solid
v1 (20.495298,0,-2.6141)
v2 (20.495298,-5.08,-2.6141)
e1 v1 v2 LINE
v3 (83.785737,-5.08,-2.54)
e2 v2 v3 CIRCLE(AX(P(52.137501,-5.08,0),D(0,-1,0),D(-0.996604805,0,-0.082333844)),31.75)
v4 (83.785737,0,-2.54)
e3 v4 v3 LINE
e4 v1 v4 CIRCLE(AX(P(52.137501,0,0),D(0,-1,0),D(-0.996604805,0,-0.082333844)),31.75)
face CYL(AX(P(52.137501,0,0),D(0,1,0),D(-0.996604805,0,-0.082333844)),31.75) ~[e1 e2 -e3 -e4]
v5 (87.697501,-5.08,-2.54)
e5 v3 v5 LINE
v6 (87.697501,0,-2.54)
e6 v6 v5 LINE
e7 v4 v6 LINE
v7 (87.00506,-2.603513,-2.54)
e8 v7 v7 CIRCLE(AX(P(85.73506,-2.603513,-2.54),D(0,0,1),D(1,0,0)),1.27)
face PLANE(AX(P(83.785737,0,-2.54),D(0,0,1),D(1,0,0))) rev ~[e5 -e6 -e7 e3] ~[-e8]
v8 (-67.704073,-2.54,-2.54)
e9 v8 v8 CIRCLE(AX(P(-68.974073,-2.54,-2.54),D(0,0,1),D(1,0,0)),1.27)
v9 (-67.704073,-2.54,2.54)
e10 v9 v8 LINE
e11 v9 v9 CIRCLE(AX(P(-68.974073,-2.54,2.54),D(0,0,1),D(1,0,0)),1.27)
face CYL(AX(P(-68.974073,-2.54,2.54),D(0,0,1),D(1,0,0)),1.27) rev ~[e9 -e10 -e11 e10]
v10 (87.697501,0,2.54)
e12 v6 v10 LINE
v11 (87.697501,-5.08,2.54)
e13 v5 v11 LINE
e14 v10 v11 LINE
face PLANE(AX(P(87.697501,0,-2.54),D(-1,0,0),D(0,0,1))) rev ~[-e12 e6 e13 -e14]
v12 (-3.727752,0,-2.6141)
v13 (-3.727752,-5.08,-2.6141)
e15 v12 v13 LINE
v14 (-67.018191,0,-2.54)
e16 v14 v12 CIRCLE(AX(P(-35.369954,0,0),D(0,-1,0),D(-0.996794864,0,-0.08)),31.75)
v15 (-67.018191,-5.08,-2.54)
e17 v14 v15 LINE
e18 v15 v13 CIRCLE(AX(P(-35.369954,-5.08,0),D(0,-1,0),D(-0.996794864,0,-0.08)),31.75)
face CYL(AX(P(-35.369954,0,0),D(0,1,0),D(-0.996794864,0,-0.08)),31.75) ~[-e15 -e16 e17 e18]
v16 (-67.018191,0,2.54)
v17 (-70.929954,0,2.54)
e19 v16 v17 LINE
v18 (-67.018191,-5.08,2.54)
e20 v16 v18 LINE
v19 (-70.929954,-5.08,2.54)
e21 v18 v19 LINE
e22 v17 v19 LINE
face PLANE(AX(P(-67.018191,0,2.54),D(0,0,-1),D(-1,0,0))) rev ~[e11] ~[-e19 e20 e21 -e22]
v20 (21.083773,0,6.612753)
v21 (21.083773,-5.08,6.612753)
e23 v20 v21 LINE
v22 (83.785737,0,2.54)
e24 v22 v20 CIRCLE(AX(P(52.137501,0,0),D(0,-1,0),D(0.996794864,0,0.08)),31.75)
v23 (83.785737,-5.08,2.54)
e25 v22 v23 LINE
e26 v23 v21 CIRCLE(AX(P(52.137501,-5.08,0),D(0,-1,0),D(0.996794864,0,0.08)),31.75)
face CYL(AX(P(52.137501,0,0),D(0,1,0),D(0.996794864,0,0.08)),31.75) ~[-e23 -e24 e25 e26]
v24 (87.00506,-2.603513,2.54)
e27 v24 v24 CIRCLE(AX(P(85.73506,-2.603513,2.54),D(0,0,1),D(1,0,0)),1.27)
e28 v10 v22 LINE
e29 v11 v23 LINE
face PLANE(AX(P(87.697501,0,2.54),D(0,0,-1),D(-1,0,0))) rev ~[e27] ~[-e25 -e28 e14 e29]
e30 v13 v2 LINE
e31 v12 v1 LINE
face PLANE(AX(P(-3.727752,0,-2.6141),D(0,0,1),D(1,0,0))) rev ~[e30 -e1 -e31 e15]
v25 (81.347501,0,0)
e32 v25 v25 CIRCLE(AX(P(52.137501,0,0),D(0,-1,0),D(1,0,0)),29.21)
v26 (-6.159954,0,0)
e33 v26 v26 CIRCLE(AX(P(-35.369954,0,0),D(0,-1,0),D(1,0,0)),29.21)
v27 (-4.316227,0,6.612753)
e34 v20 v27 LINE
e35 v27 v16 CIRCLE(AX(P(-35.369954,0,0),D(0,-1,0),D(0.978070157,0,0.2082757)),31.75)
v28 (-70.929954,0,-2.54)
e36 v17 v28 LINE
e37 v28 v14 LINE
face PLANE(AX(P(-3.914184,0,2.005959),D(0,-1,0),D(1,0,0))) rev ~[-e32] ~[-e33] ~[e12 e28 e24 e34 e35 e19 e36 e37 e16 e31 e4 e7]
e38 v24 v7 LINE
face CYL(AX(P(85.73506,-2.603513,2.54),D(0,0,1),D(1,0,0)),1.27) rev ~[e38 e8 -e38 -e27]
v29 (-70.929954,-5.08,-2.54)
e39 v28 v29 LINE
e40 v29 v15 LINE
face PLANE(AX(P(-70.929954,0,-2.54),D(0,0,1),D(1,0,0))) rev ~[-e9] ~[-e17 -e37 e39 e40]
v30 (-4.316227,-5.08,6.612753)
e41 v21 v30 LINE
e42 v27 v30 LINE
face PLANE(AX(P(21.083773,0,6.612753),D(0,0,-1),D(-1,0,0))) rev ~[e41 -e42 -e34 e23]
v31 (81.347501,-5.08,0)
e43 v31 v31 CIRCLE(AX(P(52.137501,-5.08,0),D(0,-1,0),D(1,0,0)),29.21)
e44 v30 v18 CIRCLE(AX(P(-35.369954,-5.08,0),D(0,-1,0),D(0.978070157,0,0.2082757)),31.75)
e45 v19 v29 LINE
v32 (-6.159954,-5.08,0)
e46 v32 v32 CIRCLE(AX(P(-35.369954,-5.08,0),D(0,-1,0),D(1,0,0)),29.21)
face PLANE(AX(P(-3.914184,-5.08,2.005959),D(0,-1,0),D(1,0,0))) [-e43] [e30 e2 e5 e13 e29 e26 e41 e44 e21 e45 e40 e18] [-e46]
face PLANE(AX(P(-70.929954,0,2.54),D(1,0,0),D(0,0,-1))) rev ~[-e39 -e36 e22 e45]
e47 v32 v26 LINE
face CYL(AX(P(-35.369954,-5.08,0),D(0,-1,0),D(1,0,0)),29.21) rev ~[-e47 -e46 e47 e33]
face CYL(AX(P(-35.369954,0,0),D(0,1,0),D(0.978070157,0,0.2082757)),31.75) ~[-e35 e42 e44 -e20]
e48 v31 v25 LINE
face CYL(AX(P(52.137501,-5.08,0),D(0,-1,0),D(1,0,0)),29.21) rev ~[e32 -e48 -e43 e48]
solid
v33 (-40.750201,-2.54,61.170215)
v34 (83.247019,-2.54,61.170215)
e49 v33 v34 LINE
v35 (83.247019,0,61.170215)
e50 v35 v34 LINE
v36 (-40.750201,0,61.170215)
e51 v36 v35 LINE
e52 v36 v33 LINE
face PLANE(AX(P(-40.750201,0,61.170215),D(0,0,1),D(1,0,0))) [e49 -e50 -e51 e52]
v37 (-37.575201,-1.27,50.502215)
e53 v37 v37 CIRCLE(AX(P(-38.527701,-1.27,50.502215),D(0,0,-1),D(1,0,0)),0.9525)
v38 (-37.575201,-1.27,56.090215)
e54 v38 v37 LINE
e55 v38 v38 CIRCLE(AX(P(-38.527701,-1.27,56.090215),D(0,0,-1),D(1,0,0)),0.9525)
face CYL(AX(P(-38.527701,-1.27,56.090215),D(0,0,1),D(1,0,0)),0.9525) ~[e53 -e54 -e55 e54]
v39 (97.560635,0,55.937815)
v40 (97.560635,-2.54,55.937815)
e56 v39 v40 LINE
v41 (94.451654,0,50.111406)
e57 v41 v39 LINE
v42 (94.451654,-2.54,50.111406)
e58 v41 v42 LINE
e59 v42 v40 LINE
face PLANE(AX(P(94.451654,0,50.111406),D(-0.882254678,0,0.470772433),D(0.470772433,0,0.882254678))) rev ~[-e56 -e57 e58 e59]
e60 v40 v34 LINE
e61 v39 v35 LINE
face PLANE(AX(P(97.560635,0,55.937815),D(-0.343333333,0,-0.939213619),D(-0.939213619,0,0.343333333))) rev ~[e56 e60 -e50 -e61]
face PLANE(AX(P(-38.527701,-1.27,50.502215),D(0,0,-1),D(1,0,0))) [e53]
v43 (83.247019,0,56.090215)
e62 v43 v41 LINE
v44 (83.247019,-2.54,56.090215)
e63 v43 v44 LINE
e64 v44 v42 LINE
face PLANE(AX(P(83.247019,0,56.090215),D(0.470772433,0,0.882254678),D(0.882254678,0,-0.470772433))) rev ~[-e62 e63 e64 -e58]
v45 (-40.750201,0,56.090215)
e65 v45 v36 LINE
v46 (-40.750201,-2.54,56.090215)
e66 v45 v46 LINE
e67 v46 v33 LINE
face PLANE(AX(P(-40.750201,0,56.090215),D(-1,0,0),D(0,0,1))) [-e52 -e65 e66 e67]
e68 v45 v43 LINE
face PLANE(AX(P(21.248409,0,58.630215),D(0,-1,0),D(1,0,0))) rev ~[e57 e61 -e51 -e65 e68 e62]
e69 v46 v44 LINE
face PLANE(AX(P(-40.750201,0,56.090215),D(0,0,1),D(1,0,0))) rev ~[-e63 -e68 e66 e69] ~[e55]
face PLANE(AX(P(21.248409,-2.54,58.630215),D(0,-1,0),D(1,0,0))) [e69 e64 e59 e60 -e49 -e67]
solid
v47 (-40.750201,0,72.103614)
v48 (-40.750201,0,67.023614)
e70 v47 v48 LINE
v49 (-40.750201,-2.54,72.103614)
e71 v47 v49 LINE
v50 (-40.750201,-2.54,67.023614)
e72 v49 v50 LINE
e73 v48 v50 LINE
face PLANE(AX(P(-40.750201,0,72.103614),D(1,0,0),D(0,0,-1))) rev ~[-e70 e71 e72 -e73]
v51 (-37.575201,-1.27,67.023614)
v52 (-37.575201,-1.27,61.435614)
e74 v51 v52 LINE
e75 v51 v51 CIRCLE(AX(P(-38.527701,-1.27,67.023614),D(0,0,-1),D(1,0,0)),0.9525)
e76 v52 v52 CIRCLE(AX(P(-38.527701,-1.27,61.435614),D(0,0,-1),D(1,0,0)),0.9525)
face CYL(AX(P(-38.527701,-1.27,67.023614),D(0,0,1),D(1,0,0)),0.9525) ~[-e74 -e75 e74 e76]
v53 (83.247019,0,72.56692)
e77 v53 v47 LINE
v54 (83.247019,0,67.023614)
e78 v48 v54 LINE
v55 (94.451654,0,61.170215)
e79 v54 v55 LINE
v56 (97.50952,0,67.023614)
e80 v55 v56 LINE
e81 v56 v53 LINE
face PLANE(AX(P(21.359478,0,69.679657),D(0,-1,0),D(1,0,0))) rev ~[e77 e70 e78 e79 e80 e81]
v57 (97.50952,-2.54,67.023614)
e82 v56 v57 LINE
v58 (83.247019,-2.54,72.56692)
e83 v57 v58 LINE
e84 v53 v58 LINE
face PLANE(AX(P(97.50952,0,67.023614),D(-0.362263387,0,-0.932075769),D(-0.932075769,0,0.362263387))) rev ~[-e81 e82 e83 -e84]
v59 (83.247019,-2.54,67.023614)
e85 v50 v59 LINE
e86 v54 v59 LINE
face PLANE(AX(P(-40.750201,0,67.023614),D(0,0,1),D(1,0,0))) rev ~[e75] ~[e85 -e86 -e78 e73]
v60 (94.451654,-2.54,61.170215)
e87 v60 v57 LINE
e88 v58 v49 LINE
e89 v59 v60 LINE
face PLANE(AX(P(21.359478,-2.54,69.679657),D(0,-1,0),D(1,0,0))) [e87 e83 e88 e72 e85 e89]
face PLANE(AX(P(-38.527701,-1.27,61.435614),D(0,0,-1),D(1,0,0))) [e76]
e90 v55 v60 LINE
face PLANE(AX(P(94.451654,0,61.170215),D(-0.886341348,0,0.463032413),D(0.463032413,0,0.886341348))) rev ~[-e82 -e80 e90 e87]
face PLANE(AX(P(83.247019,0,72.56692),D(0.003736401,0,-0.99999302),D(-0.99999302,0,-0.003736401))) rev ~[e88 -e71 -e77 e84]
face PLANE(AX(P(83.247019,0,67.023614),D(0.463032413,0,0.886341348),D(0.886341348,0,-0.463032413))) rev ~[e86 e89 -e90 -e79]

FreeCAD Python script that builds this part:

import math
import FreeCAD as App
import Part
import Sketcher
Q = App.Units.Quantity


def add_polygon(sketch, points):
    """Adds a closed chain of lines whose ends are joined by coincident constraints."""
    first, n = sketch.GeometryCount, len(points)
    for a, b in zip(points, points[1:] + points[:1]):
        sketch.addGeometry(Part.LineSegment(App.Vector(*a, 0), App.Vector(*b, 0)), False)
    for i in range(n):
        sketch.addConstraint(Sketcher.Constraint("Coincident", first + i, 2, first + (i + 1) % n, 1))

doc = App.newDocument("Part")
body = doc.addObject("PartDesign::Body", "Body")

sketch1 = doc.addObject("Sketcher::SketchObject", "Sketch")
body.addObject(sketch1)
sketch1.AttachmentSupport = (doc.XZ_Plane, [""])
sketch1.MapMode = "FlatFace"
sketch1.addGeometry([
    Part.LineSegment(App.Vector(-3.727752, -2.6141, 0), App.Vector(20.495298, -2.6141, 0)),
    Part.ArcOfCircle(Part.Circle(App.Vector(52.137501, 0, 0), App.Vector(0, 0, 1), 31.75), math.radians(-175.277272), math.radians(-4.588566)),
    Part.LineSegment(App.Vector(83.785737, -2.54, 0), App.Vector(87.697501, -2.54, 0)),
    Part.LineSegment(App.Vector(87.697501, -2.54, 0), App.Vector(87.697501, 2.54, 0)),
    Part.LineSegment(App.Vector(87.697501, 2.54, 0), App.Vector(83.785737, 2.54, 0)),
    Part.ArcOfCircle(Part.Circle(App.Vector(52.137501, 0, 0), App.Vector(0, 0, 1), 31.75), math.radians(4.588566), math.radians(167.978677)),
    Part.LineSegment(App.Vector(21.083773, 6.612753, 0), App.Vector(-4.316227, 6.612753, 0)),
    Part.ArcOfCircle(Part.Circle(App.Vector(-35.369954, 0, 0), App.Vector(0, 0, 1), 31.75), math.radians(12.021323), math.radians(175.411434)),
    Part.LineSegment(App.Vector(-67.018191, 2.54, 0), App.Vector(-70.929954, 2.54, 0)),
    Part.LineSegment(App.Vector(-70.929954, 2.54, 0), App.Vector(-70.929954, -2.54, 0)),
    Part.LineSegment(App.Vector(-70.929954, -2.54, 0), App.Vector(-67.018191, -2.54, 0)),
    Part.ArcOfCircle(Part.Circle(App.Vector(-35.369954, 0, 0), App.Vector(0, 0, 1), 31.75), math.radians(-175.411434), math.radians(-4.722728)),
], False)
sketch1.addConstraint([
    Sketcher.Constraint("Coincident", 0, 2, 1, 1),
    Sketcher.Constraint("Coincident", 1, 2, 2, 1),
    Sketcher.Constraint("Coincident", 2, 2, 3, 1),
    Sketcher.Constraint("Coincident", 3, 2, 4, 1),
    Sketcher.Constraint("Coincident", 4, 2, 5, 1),
    Sketcher.Constraint("Coincident", 5, 2, 6, 1),
    Sketcher.Constraint("Coincident", 6, 2, 7, 1),
    Sketcher.Constraint("Coincident", 7, 2, 8, 1),
    Sketcher.Constraint("Coincident", 8, 2, 9, 1),
    Sketcher.Constraint("Coincident", 9, 2, 10, 1),
    Sketcher.Constraint("Coincident", 10, 2, 11, 1),
    Sketcher.Constraint("Coincident", 11, 2, 0, 1),
    Sketcher.Constraint("Horizontal", 0),
    Sketcher.Constraint("Horizontal", 2),
    Sketcher.Constraint("Vertical", 3),
    Sketcher.Constraint("Horizontal", 4),
    Sketcher.Constraint("Horizontal", 6),
    Sketcher.Constraint("Horizontal", 8),
    Sketcher.Constraint("Vertical", 9),
    Sketcher.Constraint("Horizontal", 10),
    Sketcher.Constraint("Coincident", 5, 3, 1, 3),
    Sketcher.Constraint("Coincident", 11, 3, 7, 3),
    Sketcher.Constraint("Equal", 1, 5),
    Sketcher.Constraint("Equal", 5, 7),
    Sketcher.Constraint("Equal", 7, 11),
    Sketcher.Constraint("Symmetric", 1, 2, 4, 2, -1),
    Sketcher.Constraint("Symmetric", 7, 2, 10, 2, -1),
    Sketcher.Constraint("Horizontal", 4, 2, 7, 2),
    Sketcher.Constraint("Equal", 4, 8),
    Sketcher.Constraint("DistanceX", 6, 2, 6, 1, Q("1 in")),
    Sketcher.Constraint("Radius", 1, Q("1.25 in")),
    Sketcher.Constraint("DistanceY", 3, 1, 3, 2, Q("0.2 in")),
    Sketcher.Constraint("DistanceX", 1, 3, 2, 2, Q("1.4 in")),
    Sketcher.Constraint("DistanceX", 0, 1, 0, 2, Q("24.22305 mm")),
    Sketcher.Constraint("DistanceX", -1, 1, 1, 3, Q("52.137501 mm")),
    Sketcher.Constraint("DistanceY", 0, 2, -1, 1, Q("2.6141 mm")),
])
pad1 = doc.addObject("PartDesign::Pad", "Pad")
body.addObject(pad1)
pad1.Profile = sketch1
pad1.Length = Q("0.2 in")

sketch2 = doc.addObject("Sketcher::SketchObject", "Sketch001")
body.addObject(sketch2)
sketch2.AttachmentSupport = (doc.XZ_Plane, [""])
sketch2.MapMode = "FlatFace"
sketch2.AttachmentOffset = App.Placement(App.Vector(0, 0, 0.2 * 25.4), App.Rotation())
sketch2.addGeometry([
    Part.Circle(App.Vector(-35.369954, 0, 0), App.Vector(0, 0, 1), 29.21),
    Part.Circle(App.Vector(52.137501, 0, 0), App.Vector(0, 0, 1), 29.21),
], False)
sketch2.addConstraint([
    Sketcher.Constraint("Equal", 0, 1),
    Sketcher.Constraint("PointOnObject", 0, 3, -1),
    Sketcher.Constraint("PointOnObject", 1, 3, -1),
    Sketcher.Constraint("Diameter", 0, Q("2.3 in")),
    Sketcher.Constraint("DistanceX", -1, 1, 1, 3, Q("52.137501 mm")),
    Sketcher.Constraint("DistanceX", 0, 3, -1, 1, Q("35.369954 mm")),
])
pocket1 = doc.addObject("PartDesign::Pocket", "Pocket")
body.addObject(pocket1)
pocket1.Profile = sketch2
pocket1.Length = Q("1 in")

sketch3 = doc.addObject("Sketcher::SketchObject", "Sketch002")
body.addObject(sketch3)
sketch3.AttachmentSupport = (doc.XY_Plane, [""])
sketch3.MapMode = "FlatFace"
sketch3.AttachmentOffset = App.Placement(App.Vector(0, 0, 0.1 * 25.4), App.Rotation())
sketch3.addGeometry([
    Part.Circle(App.Vector(-68.974073, -2.54, 0), App.Vector(0, 0, 1), 1.27),
    Part.Circle(App.Vector(85.73506, -2.603513, 0), App.Vector(0, 0, 1), 1.27),
], False)
sketch3.addConstraint([
    Sketcher.Constraint("Equal", 0, 1),
    Sketcher.Constraint("Diameter", 0, Q("0.1 in")),
    Sketcher.Constraint("DistanceY", 0, 3, -1, 1, Q("0.1 in")),
    Sketcher.Constraint("DistanceX", -1, 1, 1, 3, Q("85.73506 mm")),
    Sketcher.Constraint("DistanceX", 0, 3, -1, 1, Q("68.974073 mm")),
    Sketcher.Constraint("DistanceY", 1, 3, -1, 1, Q("2.603513 mm")),
])
pocket2 = doc.addObject("PartDesign::Pocket", "Pocket001")
body.addObject(pocket2)
pocket2.Profile = sketch3
pocket2.Length = Q("1 in")
body2 = doc.addObject("PartDesign::Body", "Body001")

sketch4 = doc.addObject("Sketcher::SketchObject", "Sketch003")
body2.addObject(sketch4)
sketch4.AttachmentSupport = (doc.getObject("XZ_Plane001"), [""])
sketch4.MapMode = "FlatFace"
add_polygon(sketch4, [(83.247019, 72.56692), (-40.750201, 72.103614), (-40.750201, 67.023614), (83.247019, 67.023614), (94.451654, 61.170215), (97.50952, 67.023614)])
sketch4.addConstraint([
    Sketcher.Constraint("Vertical", 1),
    Sketcher.Constraint("Horizontal", 2),
    Sketcher.Constraint("Perpendicular", 3, 4),
    Sketcher.Constraint("Horizontal", 2, 2, 4, 2),
    Sketcher.Constraint("Vertical", 2, 2, 5, 2),
    Sketcher.Constraint("DistanceY", 1, 2, 1, 1, Q("0.2 in")),
    Sketcher.Constraint("Distance", 4, Q("0.26 in")),
    Sketcher.Constraint("DistanceX", 2, 1, 2, 2, Q("123.99722 mm")),
    Sketcher.Constraint("DistanceX", 0, 2, -1, 1, Q("40.750201 mm")),
    Sketcher.Constraint("DistanceY", 3, 2, 2, 2, Q("5.853398 mm")),
    Sketcher.Constraint("Distance", 5, Q("15.301868 mm")),
    Sketcher.Constraint("DistanceY", -1, 1, 5, 2, Q("72.56692 mm")),
])
pad2 = doc.addObject("PartDesign::Pad", "Pad001")
body2.addObject(pad2)
pad2.Profile = sketch4
pad2.Length = Q("0.1 in")

sketch5 = doc.addObject("Sketcher::SketchObject", "Sketch004")
body2.addObject(sketch5)
sketch5.AttachmentSupport = (doc.getObject("XY_Plane001"), [""])
sketch5.MapMode = "FlatFace"
sketch5.AttachmentOffset = App.Placement(App.Vector(0, 0, 67.023614), App.Rotation())
sketch5.addGeometry(Part.Circle(App.Vector(-38.527701, -1.27, 0), App.Vector(0, 0, 1), 0.9525), False)
sketch5.addConstraint([
    Sketcher.Constraint("Diameter", 0, Q("0.075 in")),
    Sketcher.Constraint("DistanceY", 0, 3, -1, 1, Q("0.05 in")),
    Sketcher.Constraint("DistanceX", 0, 3, -1, 1, Q("38.527701 mm")),
])
pad3 = doc.addObject("PartDesign::Pad", "Pad002")
body2.addObject(pad3)
pad3.Profile = sketch5
pad3.Length = Q("0.22 in")
pad3.Reversed = True
body3 = doc.addObject("PartDesign::Body", "Body002")

sketch6 = doc.addObject("Sketcher::SketchObject", "Sketch005")
body3.addObject(sketch6)
sketch6.AttachmentSupport = (doc.getObject("XZ_Plane002"), [""])
sketch6.MapMode = "FlatFace"
add_polygon(sketch6, [(-40.750201, 61.170215), (-40.750201, 56.090215), (83.247019, 56.090215), (94.451654, 50.111406), (97.560635, 55.937815), (83.247019, 61.170215)])
sketch6.addConstraint([
    Sketcher.Constraint("Vertical", 0),
    Sketcher.Constraint("Horizontal", 1),
    Sketcher.Constraint("Horizontal", 5),
    Sketcher.Constraint("Perpendicular", 2, 3),
    Sketcher.Constraint("Vertical", 1, 2, 4, 2),
    Sketcher.Constraint("DistanceY", 0, 2, 0, 1, Q("0.2 in")),
    Sketcher.Constraint("Distance", 2, Q("0.5 in")),
    Sketcher.Constraint("Distance", 4, Q("0.6 in")),
    Sketcher.Constraint("Distance", 3, Q("0.26 in")),
    Sketcher.Constraint("DistanceX", 1, 1, 1, 2, Q("123.99722 mm")),
    Sketcher.Constraint("DistanceX", 0, 2, -1, 1, Q("40.750201 mm")),
    Sketcher.Constraint("DistanceY", -1, 1, 0, 2, Q("56.090215 mm")),
])
pad4 = doc.addObject("PartDesign::Pad", "Pad003")
body3.addObject(pad4)
pad4.Profile = sketch6
pad4.Length = Q("0.1 in")

sketch7 = doc.addObject("Sketcher::SketchObject", "Sketch006")
body3.addObject(sketch7)
sketch7.AttachmentSupport = (doc.getObject("XY_Plane002"), [""])
sketch7.MapMode = "FlatFace"
sketch7.AttachmentOffset = App.Placement(App.Vector(0, 0, 56.090215), App.Rotation())
sketch7.addGeometry(Part.Circle(App.Vector(-38.527701, -1.27, 0), App.Vector(0, 0, 1), 0.9525), False)
sketch7.addConstraint([
    Sketcher.Constraint("Diameter", 0, Q("0.075 in")),
    Sketcher.Constraint("DistanceY", 0, 3, -1, 1, Q("0.05 in")),
    Sketcher.Constraint("DistanceX", 0, 3, -1, 1, Q("38.527701 mm")),
])
pad5 = doc.addObject("PartDesign::Pad", "Pad004")
body3.addObject(pad5)
pad5.Profile = sketch7
pad5.Length = Q("0.22 in")
pad5.Reversed = True

doc.recompute()
